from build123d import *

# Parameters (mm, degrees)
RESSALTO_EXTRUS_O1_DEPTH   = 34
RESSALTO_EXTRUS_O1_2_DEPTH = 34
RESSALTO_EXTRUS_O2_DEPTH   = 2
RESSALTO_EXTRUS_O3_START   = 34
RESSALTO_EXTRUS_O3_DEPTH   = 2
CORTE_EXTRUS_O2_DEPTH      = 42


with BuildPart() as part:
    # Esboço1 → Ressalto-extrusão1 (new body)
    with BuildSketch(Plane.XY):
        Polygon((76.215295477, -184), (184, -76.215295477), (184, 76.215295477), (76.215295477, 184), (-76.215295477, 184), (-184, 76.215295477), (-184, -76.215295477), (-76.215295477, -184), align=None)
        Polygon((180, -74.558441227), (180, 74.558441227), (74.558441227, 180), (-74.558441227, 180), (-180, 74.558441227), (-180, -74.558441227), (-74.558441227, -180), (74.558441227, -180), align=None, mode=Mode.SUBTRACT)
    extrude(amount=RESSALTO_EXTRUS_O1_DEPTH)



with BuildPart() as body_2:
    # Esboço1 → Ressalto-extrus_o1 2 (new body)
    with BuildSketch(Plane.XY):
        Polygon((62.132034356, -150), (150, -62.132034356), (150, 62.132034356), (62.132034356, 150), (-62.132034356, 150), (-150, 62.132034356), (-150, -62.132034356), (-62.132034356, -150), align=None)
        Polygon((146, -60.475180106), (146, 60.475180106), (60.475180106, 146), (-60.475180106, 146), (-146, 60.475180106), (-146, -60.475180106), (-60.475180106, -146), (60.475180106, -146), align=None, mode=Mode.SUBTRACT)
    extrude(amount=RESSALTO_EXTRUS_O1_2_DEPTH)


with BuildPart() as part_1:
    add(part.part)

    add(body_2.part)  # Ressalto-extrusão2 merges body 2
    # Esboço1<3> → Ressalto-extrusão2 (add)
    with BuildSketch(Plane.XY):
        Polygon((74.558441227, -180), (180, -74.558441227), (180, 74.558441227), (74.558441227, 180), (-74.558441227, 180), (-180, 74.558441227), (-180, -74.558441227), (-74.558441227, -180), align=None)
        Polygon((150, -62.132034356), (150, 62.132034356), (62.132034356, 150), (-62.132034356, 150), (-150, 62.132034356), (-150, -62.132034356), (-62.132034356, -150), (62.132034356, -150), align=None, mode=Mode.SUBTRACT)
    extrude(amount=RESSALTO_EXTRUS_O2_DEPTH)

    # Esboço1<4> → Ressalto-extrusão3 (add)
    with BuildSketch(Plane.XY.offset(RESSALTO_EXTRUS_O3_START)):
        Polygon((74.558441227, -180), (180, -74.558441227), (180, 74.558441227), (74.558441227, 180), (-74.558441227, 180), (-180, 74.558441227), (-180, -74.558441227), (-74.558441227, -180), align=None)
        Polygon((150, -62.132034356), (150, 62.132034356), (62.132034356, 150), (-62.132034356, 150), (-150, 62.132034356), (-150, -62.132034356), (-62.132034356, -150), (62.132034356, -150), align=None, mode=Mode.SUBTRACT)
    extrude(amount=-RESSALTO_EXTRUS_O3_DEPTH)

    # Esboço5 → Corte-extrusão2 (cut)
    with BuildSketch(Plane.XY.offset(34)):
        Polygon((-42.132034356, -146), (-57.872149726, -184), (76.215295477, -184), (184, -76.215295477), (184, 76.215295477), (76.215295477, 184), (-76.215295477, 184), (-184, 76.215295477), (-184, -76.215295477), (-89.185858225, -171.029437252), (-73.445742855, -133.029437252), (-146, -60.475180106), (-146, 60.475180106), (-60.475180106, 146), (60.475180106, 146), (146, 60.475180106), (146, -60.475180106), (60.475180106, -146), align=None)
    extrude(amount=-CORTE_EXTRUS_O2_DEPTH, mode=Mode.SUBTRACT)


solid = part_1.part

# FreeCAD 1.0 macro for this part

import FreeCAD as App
import Part
import Sketcher
from FreeCAD import Vector
Q = App.Units.Quantity

doc = App.newDocument("Part")
body = doc.addObject("PartDesign::Body", "Body")

# Sketch on XY plane
sketch1 = body.newObject("Sketcher::SketchObject", "Sketch")
sketch1.AttachmentSupport = (doc.getObject("XY_Plane"), [""])
sketch1.MapMode = "FlatFace"
sketch1.addGeometry([
    Part.LineSegment(Vector(76, -184, 0), Vector(184, -76, 0)),  # 0
    Part.LineSegment(Vector(184, -76, 0), Vector(184, 76, 0)),  # 1
    Part.LineSegment(Vector(184, 76, 0), Vector(76, 184, 0)),  # 2
    Part.LineSegment(Vector(76, 184, 0), Vector(-76, 184, 0)),  # 3
    Part.LineSegment(Vector(-76, 184, 0), Vector(-184, 76, 0)),  # 4
    Part.LineSegment(Vector(-184, 76, 0), Vector(-184, -76, 0)),  # 5
    Part.LineSegment(Vector(-184, -76, 0), Vector(-76, -184, 0)),  # 6
    Part.LineSegment(Vector(-76, -184, 0), Vector(76, -184, 0)),  # 7
    Part.LineSegment(Vector(180, 75, 0), Vector(180, -75, 0)),  # 8
    Part.LineSegment(Vector(180, -75, 0), Vector(75, -180, 0)),  # 9
    Part.LineSegment(Vector(75, -180, 0), Vector(-75, -180, 0)),  # 10
    Part.LineSegment(Vector(-75, -180, 0), Vector(-180, -75, 0)),  # 11
    Part.LineSegment(Vector(-180, -75, 0), Vector(-180, 75, 0)),  # 12
    Part.LineSegment(Vector(-180, 75, 0), Vector(-75, 180, 0)),  # 13
    Part.LineSegment(Vector(-75, 180, 0), Vector(75, 180, 0)),  # 14
    Part.LineSegment(Vector(75, 180, 0), Vector(180, 75, 0)),  # 15
], False)
sketch1.addConstraint([
    Sketcher.Constraint("Coincident", 0, 2, 1, 1),
    Sketcher.Constraint("Coincident", 1, 2, 2, 1),
    Sketcher.Constraint("Coincident", 2, 2, 3, 1),
    Sketcher.Constraint("Coincident", 3, 2, 4, 1),
    Sketcher.Constraint("Coincident", 4, 2, 5, 1),
    Sketcher.Constraint("Coincident", 5, 2, 6, 1),
    Sketcher.Constraint("Coincident", 6, 2, 7, 1),
    Sketcher.Constraint("Coincident", 7, 2, 0, 1),
    Sketcher.Constraint("Coincident", 8, 2, 9, 1),
    Sketcher.Constraint("Coincident", 9, 2, 10, 1),
    Sketcher.Constraint("Coincident", 10, 2, 11, 1),
    Sketcher.Constraint("Coincident", 11, 2, 12, 1),
    Sketcher.Constraint("Coincident", 12, 2, 13, 1),
    Sketcher.Constraint("Coincident", 13, 2, 14, 1),
    Sketcher.Constraint("Coincident", 14, 2, 15, 1),
    Sketcher.Constraint("Coincident", 15, 2, 8, 1),
    Sketcher.Constraint("Vertical", 1),
    Sketcher.Constraint("Horizontal", 3),
    Sketcher.Constraint("Vertical", 5),
    Sketcher.Constraint("Horizontal", 7),
    Sketcher.Constraint("Vertical", 8),
    Sketcher.Constraint("Horizontal", 10),
    Sketcher.Constraint("Vertical", 12),
    Sketcher.Constraint("Horizontal", 14),
    Sketcher.Constraint("Symmetric", 0, 2, 4, 2, -1, 1),
    Sketcher.Constraint("Symmetric", 2, 2, 6, 2, -1, 1),
    Sketcher.Constraint("Symmetric", 8, 2, 12, 2, -1, 1),
    Sketcher.Constraint("Symmetric", 9, 2, 13, 2, -1, 1),
    Sketcher.Constraint("Perpendicular", 0, 2),
    Sketcher.Constraint("Perpendicular", 2, 4),
    Sketcher.Constraint("Perpendicular", 4, 6),
    Sketcher.Constraint("Perpendicular", 6, 9),
    Sketcher.Constraint("Perpendicular", 9, 11),
    Sketcher.Constraint("Perpendicular", 13, 15),
    Sketcher.Constraint("Horizontal", 1, 2, 4, 2),
    Sketcher.Constraint("Horizontal", 8, 2, 11, 2),
    Sketcher.Constraint("Horizontal", 12, 2, 15, 2),
    Sketcher.Constraint("Vertical", 3, 2, 6, 2),
    Sketcher.Constraint("Equal", 7, 1),
    Sketcher.Constraint("Equal", 14, 8),
    Sketcher.Constraint("DistanceX", -1, 1, 0, 2, 184.0),
    Sketcher.Constraint("DistanceX", -1, 1, 8, 2, 180.0),
    Sketcher.Constraint("DistanceX", 3, 2, 3, 1, 152.430591),
    Sketcher.Constraint("DistanceX", 10, 2, 10, 1, 149.116882),
])
pad1 = body.newObject("PartDesign::Pad", "Pad")
pad1.Profile = sketch1
pad1.Length = 34
body2 = doc.addObject("PartDesign::Body", "Body001")

# Sketch on XY plane
sketch2 = body2.newObject("Sketcher::SketchObject", "Sketch001")
sketch2.AttachmentSupport = (doc.getObject("XY_Plane001"), [""])
sketch2.MapMode = "FlatFace"
sketch2.addGeometry([
    Part.LineSegment(Vector(62, -150, 0), Vector(150, -62, 0)),  # 0
    Part.LineSegment(Vector(150, -62, 0), Vector(150, 62, 0)),  # 1
    Part.LineSegment(Vector(150, 62, 0), Vector(62, 150, 0)),  # 2
    Part.LineSegment(Vector(62, 150, 0), Vector(-62, 150, 0)),  # 3
    Part.LineSegment(Vector(-62, 150, 0), Vector(-150, 62, 0)),  # 4
    Part.LineSegment(Vector(-150, 62, 0), Vector(-150, -62, 0)),  # 5
    Part.LineSegment(Vector(-150, -62, 0), Vector(-62, -150, 0)),  # 6
    Part.LineSegment(Vector(-62, -150, 0), Vector(62, -150, 0)),  # 7
    Part.LineSegment(Vector(146, 60, 0), Vector(146, -60, 0)),  # 8
    Part.LineSegment(Vector(146, -60, 0), Vector(60, -146, 0)),  # 9
    Part.LineSegment(Vector(60, -146, 0), Vector(-60, -146, 0)),  # 10
    Part.LineSegment(Vector(-60, -146, 0), Vector(-146, -60, 0)),  # 11
    Part.LineSegment(Vector(-146, -60, 0), Vector(-146, 60, 0)),  # 12
    Part.LineSegment(Vector(-146, 60, 0), Vector(-60, 146, 0)),  # 13
    Part.LineSegment(Vector(-60, 146, 0), Vector(60, 146, 0)),  # 14
    Part.LineSegment(Vector(60, 146, 0), Vector(146, 60, 0)),  # 15
], False)
sketch2.addConstraint([
    Sketcher.Constraint("Coincident", 0, 2, 1, 1),
    Sketcher.Constraint("Coincident", 1, 2, 2, 1),
    Sketcher.Constraint("Coincident", 2, 2, 3, 1),
    Sketcher.Constraint("Coincident", 3, 2, 4, 1),
    Sketcher.Constraint("Coincident", 4, 2, 5, 1),
    Sketcher.Constraint("Coincident", 5, 2, 6, 1),
    Sketcher.Constraint("Coincident", 6, 2, 7, 1),
    Sketcher.Constraint("Coincident", 7, 2, 0, 1),
    Sketcher.Constraint("Coincident", 8, 2, 9, 1),
    Sketcher.Constraint("Coincident", 9, 2, 10, 1),
    Sketcher.Constraint("Coincident", 10, 2, 11, 1),
    Sketcher.Constraint("Coincident", 11, 2, 12, 1),
    Sketcher.Constraint("Coincident", 12, 2, 13, 1),
    Sketcher.Constraint("Coincident", 13, 2, 14, 1),
    Sketcher.Constraint("Coincident", 14, 2, 15, 1),
    Sketcher.Constraint("Coincident", 15, 2, 8, 1),
    Sketcher.Constraint("Vertical", 1),
    Sketcher.Constraint("Horizontal", 3),
    Sketcher.Constraint("Vertical", 5),
    Sketcher.Constraint("Horizontal", 7),
    Sketcher.Constraint("Vertical", 8),
    Sketcher.Constraint("Horizontal", 10),
    Sketcher.Constraint("Vertical", 12),
    Sketcher.Constraint("Horizontal", 14),
    Sketcher.Constraint("Symmetric", 0, 2, 4, 2, -1, 1),
    Sketcher.Constraint("Symmetric", 2, 2, 6, 2, -1, 1),
    Sketcher.Constraint("Symmetric", 8, 2, 12, 2, -1, 1),
    Sketcher.Constraint("Symmetric", 9, 2, 13, 2, -1, 1),
    Sketcher.Constraint("Perpendicular", 0, 2),
    Sketcher.Constraint("Perpendicular", 2, 4),
    Sketcher.Constraint("Perpendicular", 4, 6),
    Sketcher.Constraint("Perpendicular", 6, 9),
    Sketcher.Constraint("Perpendicular", 9, 11),
    Sketcher.Constraint("Perpendicular", 13, 15),
    Sketcher.Constraint("Horizontal", 1, 2, 4, 2),
    Sketcher.Constraint("Horizontal", 8, 2, 11, 2),
    Sketcher.Constraint("Horizontal", 12, 2, 15, 2),
    Sketcher.Constraint("Vertical", 3, 2, 6, 2),
    Sketcher.Constraint("Equal", 7, 1),
    Sketcher.Constraint("Equal", 14, 8),
    Sketcher.Constraint("DistanceX", -1, 1, 0, 2, 150.0),
    Sketcher.Constraint("DistanceX", -1, 1, 8, 2, 146.0),
    Sketcher.Constraint("DistanceX", 3, 2, 3, 1, 124.264069),
    Sketcher.Constraint("DistanceX", 10, 2, 10, 1, 120.95036),
])
pad2 = body2.newObject("PartDesign::Pad", "Pad001")
pad2.Profile = sketch2
pad2.Length = 34
body.AllowCompound = True
doc.recompute()

boolean = body.newObject("PartDesign::Boolean", "Boolean")
boolean.Type = "Fuse"
boolean.addObjects([body2])

# Sketch on XY plane
sketch3 = body.newObject("Sketcher::SketchObject", "Sketch002")
sketch3.AttachmentSupport = (doc.getObject("XY_Plane"), [""])
sketch3.MapMode = "FlatFace"
sketch3.addGeometry([
    Part.LineSegment(Vector(75, -180, 0), Vector(180, -75, 0)),  # 0
    Part.LineSegment(Vector(180, -75, 0), Vector(180, 75, 0)),  # 1
    Part.LineSegment(Vector(180, 75, 0), Vector(75, 180, 0)),  # 2
    Part.LineSegment(Vector(75, 180, 0), Vector(-75, 180, 0)),  # 3
    Part.LineSegment(Vector(-75, 180, 0), Vector(-180, 75, 0)),  # 4
    Part.LineSegment(Vector(-180, 75, 0), Vector(-180, -75, 0)),  # 5
    Part.LineSegment(Vector(-180, -75, 0), Vector(-75, -180, 0)),  # 6
    Part.LineSegment(Vector(-75, -180, 0), Vector(75, -180, 0)),  # 7
    Part.LineSegment(Vector(150, 62, 0), Vector(150, -62, 0)),  # 8
    Part.LineSegment(Vector(150, -62, 0), Vector(62, -150, 0)),  # 9
    Part.LineSegment(Vector(62, -150, 0), Vector(-62, -150, 0)),  # 10
    Part.LineSegment(Vector(-62, -150, 0), Vector(-150, -62, 0)),  # 11
    Part.LineSegment(Vector(-150, -62, 0), Vector(-150, 62, 0)),  # 12
    Part.LineSegment(Vector(-150, 62, 0), Vector(-62, 150, 0)),  # 13
    Part.LineSegment(Vector(-62, 150, 0), Vector(62, 150, 0)),  # 14
    Part.LineSegment(Vector(62, 150, 0), Vector(150, 62, 0)),  # 15
], False)
sketch3.addConstraint([
    Sketcher.Constraint("Coincident", 0, 2, 1, 1),
    Sketcher.Constraint("Coincident", 1, 2, 2, 1),
    Sketcher.Constraint("Coincident", 2, 2, 3, 1),
    Sketcher.Constraint("Coincident", 3, 2, 4, 1),
    Sketcher.Constraint("Coincident", 4, 2, 5, 1),
    Sketcher.Constraint("Coincident", 5, 2, 6, 1),
    Sketcher.Constraint("Coincident", 6, 2, 7, 1),
    Sketcher.Constraint("Coincident", 7, 2, 0, 1),
    Sketcher.Constraint("Coincident", 8, 2, 9, 1),
    Sketcher.Constraint("Coincident", 9, 2, 10, 1),
    Sketcher.Constraint("Coincident", 10, 2, 11, 1),
    Sketcher.Constraint("Coincident", 11, 2, 12, 1),
    Sketcher.Constraint("Coincident", 12, 2, 13, 1),
    Sketcher.Constraint("Coincident", 13, 2, 14, 1),
    Sketcher.Constraint("Coincident", 14, 2, 15, 1),
    Sketcher.Constraint("Coincident", 15, 2, 8, 1),
    Sketcher.Constraint("Vertical", 1),
    Sketcher.Constraint("Horizontal", 3),
    Sketcher.Constraint("Vertical", 5),
    Sketcher.Constraint("Horizontal", 7),
    Sketcher.Constraint("Vertical", 8),
    Sketcher.Constraint("Horizontal", 10),
    Sketcher.Constraint("Vertical", 12),
    Sketcher.Constraint("Horizontal", 14),
    Sketcher.Constraint("Symmetric", 0, 2, 4, 2, -1, 1),
    Sketcher.Constraint("Symmetric", 2, 2, 6, 2, -1, 1),
    Sketcher.Constraint("Symmetric", 8, 2, 12, 2, -1, 1),
    Sketcher.Constraint("Symmetric", 9, 2, 13, 2, -1, 1),
    Sketcher.Constraint("Perpendicular", 0, 2),
    Sketcher.Constraint("Perpendicular", 2, 4),
    Sketcher.Constraint("Perpendicular", 4, 6),
    Sketcher.Constraint("Perpendicular", 6, 9),
    Sketcher.Constraint("Perpendicular", 9, 11),
    Sketcher.Constraint("Perpendicular", 13, 15),
    Sketcher.Constraint("Horizontal", 1, 2, 4, 2),
    Sketcher.Constraint("Horizontal", 8, 2, 11, 2),
    Sketcher.Constraint("Horizontal", 12, 2, 15, 2),
    Sketcher.Constraint("Vertical", 3, 2, 6, 2),
    Sketcher.Constraint("Equal", 7, 1),
    Sketcher.Constraint("Equal", 14, 8),
    Sketcher.Constraint("DistanceX", -1, 1, 0, 2, 180.0),
    Sketcher.Constraint("DistanceX", -1, 1, 8, 2, 150.0),
    Sketcher.Constraint("DistanceX", 10, 2, 10, 1, 124.264069),
    Sketcher.Constraint("DistanceX", 3, 2, 3, 1, 149.116882),
])
pad3 = body.newObject("PartDesign::Pad", "Pad002")
pad3.Profile = sketch3
pad3.Length = 2

# Sketch on XY plane
sketch4 = body.newObject("Sketcher::SketchObject", "Sketch003")
sketch4.AttachmentSupport = (doc.getObject("XY_Plane"), [""])
sketch4.MapMode = "FlatFace"
sketch4.AttachmentOffset = App.Placement(Vector(0, 0, 34), App.Rotation())
sketch4.addGeometry([
    Part.LineSegment(Vector(75, -180, 0), Vector(180, -75, 0)),  # 0
    Part.LineSegment(Vector(180, -75, 0), Vector(180, 75, 0)),  # 1
    Part.LineSegment(Vector(180, 75, 0), Vector(75, 180, 0)),  # 2
    Part.LineSegment(Vector(75, 180, 0), Vector(-75, 180, 0)),  # 3
    Part.LineSegment(Vector(-75, 180, 0), Vector(-180, 75, 0)),  # 4
    Part.LineSegment(Vector(-180, 75, 0), Vector(-180, -75, 0)),  # 5
    Part.LineSegment(Vector(-180, -75, 0), Vector(-75, -180, 0)),  # 6
    Part.LineSegment(Vector(-75, -180, 0), Vector(75, -180, 0)),  # 7
    Part.LineSegment(Vector(150, 62, 0), Vector(150, -62, 0)),  # 8
    Part.LineSegment(Vector(150, -62, 0), Vector(62, -150, 0)),  # 9
    Part.LineSegment(Vector(62, -150, 0), Vector(-62, -150, 0)),  # 10
    Part.LineSegment(Vector(-62, -150, 0), Vector(-150, -62, 0)),  # 11
    Part.LineSegment(Vector(-150, -62, 0), Vector(-150, 62, 0)),  # 12
    Part.LineSegment(Vector(-150, 62, 0), Vector(-62, 150, 0)),  # 13
    Part.LineSegment(Vector(-62, 150, 0), Vector(62, 150, 0)),  # 14
    Part.LineSegment(Vector(62, 150, 0), Vector(150, 62, 0)),  # 15
], False)
sketch4.addConstraint([
    Sketcher.Constraint("Coincident", 0, 2, 1, 1),
    Sketcher.Constraint("Coincident", 1, 2, 2, 1),
    Sketcher.Constraint("Coincident", 2, 2, 3, 1),
    Sketcher.Constraint("Coincident", 3, 2, 4, 1),
    Sketcher.Constraint("Coincident", 4, 2, 5, 1),
    Sketcher.Constraint("Coincident", 5, 2, 6, 1),
    Sketcher.Constraint("Coincident", 6, 2, 7, 1),
    Sketcher.Constraint("Coincident", 7, 2, 0, 1),
    Sketcher.Constraint("Coincident", 8, 2, 9, 1),
    Sketcher.Constraint("Coincident", 9, 2, 10, 1),
    Sketcher.Constraint("Coincident", 10, 2, 11, 1),
    Sketcher.Constraint("Coincident", 11, 2, 12, 1),
    Sketcher.Constraint("Coincident", 12, 2, 13, 1),
    Sketcher.Constraint("Coincident", 13, 2, 14, 1),
    Sketcher.Constraint("Coincident", 14, 2, 15, 1),
    Sketcher.Constraint("Coincident", 15, 2, 8, 1),
    Sketcher.Constraint("Vertical", 1),
    Sketcher.Constraint("Horizontal", 3),
    Sketcher.Constraint("Vertical", 5),
    Sketcher.Constraint("Horizontal", 7),
    Sketcher.Constraint("Vertical", 8),
    Sketcher.Constraint("Horizontal", 10),
    Sketcher.Constraint("Vertical", 12),
    Sketcher.Constraint("Horizontal", 14),
    Sketcher.Constraint("Symmetric", 0, 2, 4, 2, -1, 1),
    Sketcher.Constraint("Symmetric", 2, 2, 6, 2, -1, 1),
    Sketcher.Constraint("Symmetric", 8, 2, 12, 2, -1, 1),
    Sketcher.Constraint("Symmetric", 9, 2, 13, 2, -1, 1),
    Sketcher.Constraint("Perpendicular", 0, 2),
    Sketcher.Constraint("Perpendicular", 2, 4),
    Sketcher.Constraint("Perpendicular", 4, 6),
    Sketcher.Constraint("Perpendicular", 6, 9),
    Sketcher.Constraint("Perpendicular", 9, 11),
    Sketcher.Constraint("Perpendicular", 13, 15),
    Sketcher.Constraint("Horizontal", 1, 2, 4, 2),
    Sketcher.Constraint("Horizontal", 8, 2, 11, 2),
    Sketcher.Constraint("Horizontal", 12, 2, 15, 2),
    Sketcher.Constraint("Vertical", 3, 2, 6, 2),
    Sketcher.Constraint("Equal", 7, 1),
    Sketcher.Constraint("Equal", 14, 8),
    Sketcher.Constraint("DistanceX", -1, 1, 0, 2, 180.0),
    Sketcher.Constraint("DistanceX", -1, 1, 8, 2, 150.0),
    Sketcher.Constraint("DistanceX", 10, 2, 10, 1, 124.264069),
    Sketcher.Constraint("DistanceX", 3, 2, 3, 1, 149.116882),
])
pad4 = body.newObject("PartDesign::Pad", "Pad003")
pad4.Profile = sketch4
pad4.Length = 2
pad4.Reversed = True

# Sketch on XY plane
sketch5 = body.newObject("Sketcher::SketchObject", "Sketch004")
sketch5.AttachmentSupport = (doc.getObject("XY_Plane"), [""])
sketch5.MapMode = "FlatFace"
sketch5.AttachmentOffset = App.Placement(Vector(0, 0, 34), App.Rotation())
sketch5.addGeometry([
    Part.LineSegment(Vector(-42, -146, 0), Vector(-58, -184, 0)),  # 0
    Part.LineSegment(Vector(-58, -184, 0), Vector(76, -184, 0)),  # 1
    Part.LineSegment(Vector(76, -184, 0), Vector(184, -76, 0)),  # 2
    Part.LineSegment(Vector(184, -76, 0), Vector(184, 76, 0)),  # 3
    Part.LineSegment(Vector(184, 76, 0), Vector(76, 184, 0)),  # 4
    Part.LineSegment(Vector(76, 184, 0), Vector(-76, 184, 0)),  # 5
    Part.LineSegment(Vector(-76, 184, 0), Vector(-184, 76, 0)),  # 6
    Part.LineSegment(Vector(-184, 76, 0), Vector(-184, -76, 0)),  # 7
    Part.LineSegment(Vector(-184, -76, 0), Vector(-89, -171, 0)),  # 8
    Part.LineSegment(Vector(-89, -171, 0), Vector(-73, -133, 0)),  # 9
    Part.LineSegment(Vector(-73, -133, 0), Vector(-146, -60, 0)),  # 10
    Part.LineSegment(Vector(-146, -60, 0), Vector(-146, 60, 0)),  # 11
    Part.LineSegment(Vector(-146, 60, 0), Vector(-60, 146, 0)),  # 12
    Part.LineSegment(Vector(-60, 146, 0), Vector(60, 146, 0)),  # 13
    Part.LineSegment(Vector(60, 146, 0), Vector(146, 60, 0)),  # 14
    Part.LineSegment(Vector(146, 60, 0), Vector(146, -60, 0)),  # 15
    Part.LineSegment(Vector(146, -60, 0), Vector(60, -146, 0)),  # 16
    Part.LineSegment(Vector(60, -146, 0), Vector(-42, -146, 0)),  # 17
], False)
sketch5.addConstraint([
    Sketcher.Constraint("Coincident", 0, 2, 1, 1),
    Sketcher.Constraint("Coincident", 1, 2, 2, 1),
    Sketcher.Constraint("Coincident", 2, 2, 3, 1),
    Sketcher.Constraint("Coincident", 3, 2, 4, 1),
    Sketcher.Constraint("Coincident", 4, 2, 5, 1),
    Sketcher.Constraint("Coincident", 5, 2, 6, 1),
    Sketcher.Constraint("Coincident", 6, 2, 7, 1),
    Sketcher.Constraint("Coincident", 7, 2, 8, 1),
    Sketcher.Constraint("Coincident", 8, 2, 9, 1),
    Sketcher.Constraint("Coincident", 9, 2, 10, 1),
    Sketcher.Constraint("Coincident", 10, 2, 11, 1),
    Sketcher.Constraint("Coincident", 11, 2, 12, 1),
    Sketcher.Constraint("Coincident", 12, 2, 13, 1),
    Sketcher.Constraint("Coincident", 13, 2, 14, 1),
    Sketcher.Constraint("Coincident", 14, 2, 15, 1),
    Sketcher.Constraint("Coincident", 15, 2, 16, 1),
    Sketcher.Constraint("Coincident", 16, 2, 17, 1),
    Sketcher.Constraint("Coincident", 17, 2, 0, 1),
    Sketcher.Constraint("Horizontal", 1),
    Sketcher.Constraint("Vertical", 3),
    Sketcher.Constraint("Horizontal", 5),
    Sketcher.Constraint("Vertical", 7),
    Sketcher.Constraint("Vertical", 11),
    Sketcher.Constraint("Horizontal", 13),
    Sketcher.Constraint("Vertical", 15),
    Sketcher.Constraint("Horizontal", 17),
    Sketcher.Constraint("Symmetric", 1, 2, 5, 2, -1, 1),
    Sketcher.Constraint("Symmetric", 2, 2, 6, 2, -1, 1),
    Sketcher.Constraint("Symmetric", 10, 2, 14, 2, -1, 1),
    Sketcher.Constraint("Symmetric", 12, 2, 16, 2, -1, 1),
    Sketcher.Constraint("Perpendicular", 2, 4),
    Sketcher.Constraint("Perpendicular", 6, 8),
    Sketcher.Constraint("Parallel", 0, 9),
    Sketcher.Constraint("Parallel", 8, 10),
    Sketcher.Constraint("Perpendicular", 10, 12),
    Sketcher.Constraint("Perpendicular", 12, 14),
    Sketcher.Constraint("Perpendicular", 14, 16),
    Sketcher.Constraint("Horizontal", 3, 2, 6, 2),
    Sketcher.Constraint("Horizontal", 2, 2, 7, 2),
    Sketcher.Constraint("Horizontal", 11, 2, 14, 2),
    Sketcher.Constraint("Vertical", 1, 2, 4, 2),
    Sketcher.Constraint("Equal", 5, 3),
    Sketcher.Constraint("Equal", 13, 11),
    Sketcher.Constraint("Equal", 0, 9),
    Sketcher.Constraint("DistanceY", 0, 2, -1, 1, 184.0),
    Sketcher.Constraint("DistanceX", 10, 2, -1, 1, 146.0),
    Sketcher.Constraint("Angle", 0, Q("-112.5 deg")),
    Sketcher.Constraint("DistanceX", 5, 2, 5, 1, 152.430591),
    Sketcher.Constraint("DistanceX", 1, 1, 1, 2, 134.087445),
    Sketcher.Constraint("DistanceX", 8, 2, -1, 1, 89.185858),
])
pocket1 = body.newObject("PartDesign::Pocket", "Pocket")
pocket1.Profile = sketch5
pocket1.Length = 42

doc.recompute()
